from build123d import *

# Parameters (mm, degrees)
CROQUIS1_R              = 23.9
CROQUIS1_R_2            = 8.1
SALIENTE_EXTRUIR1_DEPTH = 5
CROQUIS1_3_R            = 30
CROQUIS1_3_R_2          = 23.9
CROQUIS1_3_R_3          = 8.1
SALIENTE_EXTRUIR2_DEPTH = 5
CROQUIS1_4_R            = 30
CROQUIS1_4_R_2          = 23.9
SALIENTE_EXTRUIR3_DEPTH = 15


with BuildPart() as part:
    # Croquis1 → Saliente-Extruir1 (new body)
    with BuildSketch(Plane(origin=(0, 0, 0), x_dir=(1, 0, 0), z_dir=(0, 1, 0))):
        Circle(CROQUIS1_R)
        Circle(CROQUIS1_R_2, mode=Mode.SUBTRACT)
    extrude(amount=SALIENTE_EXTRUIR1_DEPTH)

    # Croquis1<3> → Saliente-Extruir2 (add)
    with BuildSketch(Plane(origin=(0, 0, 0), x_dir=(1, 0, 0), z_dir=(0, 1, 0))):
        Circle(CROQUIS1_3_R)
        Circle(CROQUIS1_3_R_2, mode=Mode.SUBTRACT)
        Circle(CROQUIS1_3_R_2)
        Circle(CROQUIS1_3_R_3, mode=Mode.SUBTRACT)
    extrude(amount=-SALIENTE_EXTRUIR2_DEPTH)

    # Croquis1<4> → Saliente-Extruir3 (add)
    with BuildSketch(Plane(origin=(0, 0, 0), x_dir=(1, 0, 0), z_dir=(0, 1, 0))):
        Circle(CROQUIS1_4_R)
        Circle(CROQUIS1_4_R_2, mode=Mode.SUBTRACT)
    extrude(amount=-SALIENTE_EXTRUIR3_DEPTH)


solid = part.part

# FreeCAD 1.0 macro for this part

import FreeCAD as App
import Part
import Sketcher

V = App.Vector

doc = App.newDocument("Part")
body = doc.addObject("PartDesign::Body", "Body")

sketch1 = doc.addObject("Sketcher::SketchObject", "Sketch")
body.addObject(sketch1)
sketch1.AttachmentSupport = (doc.XZ_Plane, [""])
sketch1.MapMode = "FlatFace"
sketch1.addGeometry([
    Part.Circle(V(0, 0, 0), V(0, 0, 1), 24),
    Part.Circle(V(0, 0, 0), V(0, 0, 1), 8),
], False)
sketch1.addConstraint([
    Sketcher.Constraint("Coincident", 0, 3, -1, 1),
    Sketcher.Constraint("Coincident", 1, 3, -1, 1),
    Sketcher.Constraint("Diameter", 0, 47.8),
    Sketcher.Constraint("Diameter", 1, 16.2),
])
pad1 = doc.addObject("PartDesign::Pad", "Pad")
body.addObject(pad1)
pad1.Profile = sketch1
pad1.Length = 5
pad1.Reversed = True

sketch2 = doc.addObject("Sketcher::SketchObject", "Sketch001")
body.addObject(sketch2)
sketch2.AttachmentSupport = (doc.XZ_Plane, [""])
sketch2.MapMode = "FlatFace"
sketch2.addGeometry([
    Part.Circle(V(0, 0, 0), V(0, 0, 1), 30),
    Part.Circle(V(0, 0, 0), V(0, 0, 1), 8),
], False)
sketch2.addConstraint([
    Sketcher.Constraint("Coincident", 0, 3, -1, 1),
    Sketcher.Constraint("Coincident", 1, 3, -1, 1),
    Sketcher.Constraint("Diameter", 0, 60.0),
    Sketcher.Constraint("Diameter", 1, 16.2),
])
pad2 = doc.addObject("PartDesign::Pad", "Pad001")
body.addObject(pad2)
pad2.Profile = sketch2
pad2.Length = 5

sketch3 = doc.addObject("Sketcher::SketchObject", "Sketch002")
body.addObject(sketch3)
sketch3.AttachmentSupport = (doc.XZ_Plane, [""])
sketch3.MapMode = "FlatFace"
sketch3.addGeometry([
    Part.Circle(V(0, 0, 0), V(0, 0, 1), 30),
    Part.Circle(V(0, 0, 0), V(0, 0, 1), 24),
], False)
sketch3.addConstraint([
    Sketcher.Constraint("Coincident", 0, 3, -1, 1),
    Sketcher.Constraint("Coincident", 1, 3, -1, 1),
    Sketcher.Constraint("Diameter", 0, 60.0),
    Sketcher.Constraint("Diameter", 1, 47.8),
])
pad3 = doc.addObject("PartDesign::Pad", "Pad002")
body.addObject(pad3)
pad3.Profile = sketch3
pad3.Length = 15

doc.recompute()
